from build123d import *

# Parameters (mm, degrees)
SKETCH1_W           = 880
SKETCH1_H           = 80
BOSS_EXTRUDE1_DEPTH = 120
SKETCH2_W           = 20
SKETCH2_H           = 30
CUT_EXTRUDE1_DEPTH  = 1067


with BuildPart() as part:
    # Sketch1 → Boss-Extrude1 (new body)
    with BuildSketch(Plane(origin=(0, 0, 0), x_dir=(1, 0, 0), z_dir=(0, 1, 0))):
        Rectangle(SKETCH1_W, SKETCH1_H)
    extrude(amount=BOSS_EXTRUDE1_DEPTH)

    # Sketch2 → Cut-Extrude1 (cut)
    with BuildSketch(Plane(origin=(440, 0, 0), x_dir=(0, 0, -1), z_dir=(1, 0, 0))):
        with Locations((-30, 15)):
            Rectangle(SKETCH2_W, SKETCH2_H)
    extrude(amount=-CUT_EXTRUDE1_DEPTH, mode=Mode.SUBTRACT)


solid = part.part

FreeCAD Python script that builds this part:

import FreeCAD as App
import Part
import Sketcher
from FreeCAD import Vector

doc = App.newDocument("Part")
body = doc.addObject("PartDesign::Body", "Body")

# Sketch on XZ plane
sketch1 = body.newObject("Sketcher::SketchObject", "Sketch")
sketch1.AttachmentSupport = (doc.getObject("XZ_Plane"), [""])
sketch1.MapMode = "FlatFace"
sketch1.addGeometry([
    Part.LineSegment(Vector(-440, -40, 0), Vector(-440, 40, 0)),
    Part.LineSegment(Vector(-440, 40, 0), Vector(440, 40, 0)),
    Part.LineSegment(Vector(440, 40, 0), Vector(440, -40, 0)),
    Part.LineSegment(Vector(440, -40, 0), Vector(-440, -40, 0)),
], False)
sketch1.addConstraint([
    Sketcher.Constraint("Coincident", 0, 2, 1, 1),
    Sketcher.Constraint("Coincident", 1, 2, 2, 1),
    Sketcher.Constraint("Coincident", 2, 2, 3, 1),
    Sketcher.Constraint("Coincident", 3, 2, 0, 1),
    Sketcher.Constraint("Vertical", 0),
    Sketcher.Constraint("Horizontal", 1),
    Sketcher.Constraint("Vertical", 2),
    Sketcher.Constraint("Horizontal", 3),
    Sketcher.Constraint("Symmetric", 0, 2, 2, 2, -1, 1),
    Sketcher.Constraint("DistanceX", 1, 1, 1, 2, 880.0),
    Sketcher.Constraint("DistanceY", 0, 1, 0, 2, 80.0),
])
pad1 = body.newObject("PartDesign::Pad", "Pad")
pad1.Profile = sketch1
pad1.Length = 120
pad1.Reversed = True

# Sketch on YZ plane
sketch2 = body.newObject("Sketcher::SketchObject", "Sketch001")
sketch2.AttachmentSupport = (doc.getObject("YZ_Plane"), [""])
sketch2.MapMode = "FlatFace"
sketch2.AttachmentOffset = App.Placement(Vector(0, 0, 440), App.Rotation())
sketch2.addGeometry([
    Part.LineSegment(Vector(30, 40, 0), Vector(0, 40, 0)),
    Part.LineSegment(Vector(0, 40, 0), Vector(0, 20, 0)),
    Part.LineSegment(Vector(0, 20, 0), Vector(30, 20, 0)),
    Part.LineSegment(Vector(30, 20, 0), Vector(30, 40, 0)),
], False)
sketch2.addConstraint([
    Sketcher.Constraint("Coincident", 0, 2, 1, 1),
    Sketcher.Constraint("Coincident", 1, 2, 2, 1),
    Sketcher.Constraint("Coincident", 2, 2, 3, 1),
    Sketcher.Constraint("Coincident", 3, 2, 0, 1),
    Sketcher.Constraint("Horizontal", 0),
    Sketcher.Constraint("Vertical", 1),
    Sketcher.Constraint("Horizontal", 2),
    Sketcher.Constraint("Vertical", 3),
    Sketcher.Constraint("PointOnObject", 0, 2, -2),
    Sketcher.Constraint("DistanceX", 0, 2, 0, 1, 30.0),
    Sketcher.Constraint("DistanceY", 1, 2, 1, 1, 20.0),
    Sketcher.Constraint("DistanceY", -1, 1, 0, 2, 40.0),
])
pocket1 = body.newObject("PartDesign::Pocket", "Pocket")
pocket1.Profile = sketch2
pocket1.Length = 1067

doc.recompute()
